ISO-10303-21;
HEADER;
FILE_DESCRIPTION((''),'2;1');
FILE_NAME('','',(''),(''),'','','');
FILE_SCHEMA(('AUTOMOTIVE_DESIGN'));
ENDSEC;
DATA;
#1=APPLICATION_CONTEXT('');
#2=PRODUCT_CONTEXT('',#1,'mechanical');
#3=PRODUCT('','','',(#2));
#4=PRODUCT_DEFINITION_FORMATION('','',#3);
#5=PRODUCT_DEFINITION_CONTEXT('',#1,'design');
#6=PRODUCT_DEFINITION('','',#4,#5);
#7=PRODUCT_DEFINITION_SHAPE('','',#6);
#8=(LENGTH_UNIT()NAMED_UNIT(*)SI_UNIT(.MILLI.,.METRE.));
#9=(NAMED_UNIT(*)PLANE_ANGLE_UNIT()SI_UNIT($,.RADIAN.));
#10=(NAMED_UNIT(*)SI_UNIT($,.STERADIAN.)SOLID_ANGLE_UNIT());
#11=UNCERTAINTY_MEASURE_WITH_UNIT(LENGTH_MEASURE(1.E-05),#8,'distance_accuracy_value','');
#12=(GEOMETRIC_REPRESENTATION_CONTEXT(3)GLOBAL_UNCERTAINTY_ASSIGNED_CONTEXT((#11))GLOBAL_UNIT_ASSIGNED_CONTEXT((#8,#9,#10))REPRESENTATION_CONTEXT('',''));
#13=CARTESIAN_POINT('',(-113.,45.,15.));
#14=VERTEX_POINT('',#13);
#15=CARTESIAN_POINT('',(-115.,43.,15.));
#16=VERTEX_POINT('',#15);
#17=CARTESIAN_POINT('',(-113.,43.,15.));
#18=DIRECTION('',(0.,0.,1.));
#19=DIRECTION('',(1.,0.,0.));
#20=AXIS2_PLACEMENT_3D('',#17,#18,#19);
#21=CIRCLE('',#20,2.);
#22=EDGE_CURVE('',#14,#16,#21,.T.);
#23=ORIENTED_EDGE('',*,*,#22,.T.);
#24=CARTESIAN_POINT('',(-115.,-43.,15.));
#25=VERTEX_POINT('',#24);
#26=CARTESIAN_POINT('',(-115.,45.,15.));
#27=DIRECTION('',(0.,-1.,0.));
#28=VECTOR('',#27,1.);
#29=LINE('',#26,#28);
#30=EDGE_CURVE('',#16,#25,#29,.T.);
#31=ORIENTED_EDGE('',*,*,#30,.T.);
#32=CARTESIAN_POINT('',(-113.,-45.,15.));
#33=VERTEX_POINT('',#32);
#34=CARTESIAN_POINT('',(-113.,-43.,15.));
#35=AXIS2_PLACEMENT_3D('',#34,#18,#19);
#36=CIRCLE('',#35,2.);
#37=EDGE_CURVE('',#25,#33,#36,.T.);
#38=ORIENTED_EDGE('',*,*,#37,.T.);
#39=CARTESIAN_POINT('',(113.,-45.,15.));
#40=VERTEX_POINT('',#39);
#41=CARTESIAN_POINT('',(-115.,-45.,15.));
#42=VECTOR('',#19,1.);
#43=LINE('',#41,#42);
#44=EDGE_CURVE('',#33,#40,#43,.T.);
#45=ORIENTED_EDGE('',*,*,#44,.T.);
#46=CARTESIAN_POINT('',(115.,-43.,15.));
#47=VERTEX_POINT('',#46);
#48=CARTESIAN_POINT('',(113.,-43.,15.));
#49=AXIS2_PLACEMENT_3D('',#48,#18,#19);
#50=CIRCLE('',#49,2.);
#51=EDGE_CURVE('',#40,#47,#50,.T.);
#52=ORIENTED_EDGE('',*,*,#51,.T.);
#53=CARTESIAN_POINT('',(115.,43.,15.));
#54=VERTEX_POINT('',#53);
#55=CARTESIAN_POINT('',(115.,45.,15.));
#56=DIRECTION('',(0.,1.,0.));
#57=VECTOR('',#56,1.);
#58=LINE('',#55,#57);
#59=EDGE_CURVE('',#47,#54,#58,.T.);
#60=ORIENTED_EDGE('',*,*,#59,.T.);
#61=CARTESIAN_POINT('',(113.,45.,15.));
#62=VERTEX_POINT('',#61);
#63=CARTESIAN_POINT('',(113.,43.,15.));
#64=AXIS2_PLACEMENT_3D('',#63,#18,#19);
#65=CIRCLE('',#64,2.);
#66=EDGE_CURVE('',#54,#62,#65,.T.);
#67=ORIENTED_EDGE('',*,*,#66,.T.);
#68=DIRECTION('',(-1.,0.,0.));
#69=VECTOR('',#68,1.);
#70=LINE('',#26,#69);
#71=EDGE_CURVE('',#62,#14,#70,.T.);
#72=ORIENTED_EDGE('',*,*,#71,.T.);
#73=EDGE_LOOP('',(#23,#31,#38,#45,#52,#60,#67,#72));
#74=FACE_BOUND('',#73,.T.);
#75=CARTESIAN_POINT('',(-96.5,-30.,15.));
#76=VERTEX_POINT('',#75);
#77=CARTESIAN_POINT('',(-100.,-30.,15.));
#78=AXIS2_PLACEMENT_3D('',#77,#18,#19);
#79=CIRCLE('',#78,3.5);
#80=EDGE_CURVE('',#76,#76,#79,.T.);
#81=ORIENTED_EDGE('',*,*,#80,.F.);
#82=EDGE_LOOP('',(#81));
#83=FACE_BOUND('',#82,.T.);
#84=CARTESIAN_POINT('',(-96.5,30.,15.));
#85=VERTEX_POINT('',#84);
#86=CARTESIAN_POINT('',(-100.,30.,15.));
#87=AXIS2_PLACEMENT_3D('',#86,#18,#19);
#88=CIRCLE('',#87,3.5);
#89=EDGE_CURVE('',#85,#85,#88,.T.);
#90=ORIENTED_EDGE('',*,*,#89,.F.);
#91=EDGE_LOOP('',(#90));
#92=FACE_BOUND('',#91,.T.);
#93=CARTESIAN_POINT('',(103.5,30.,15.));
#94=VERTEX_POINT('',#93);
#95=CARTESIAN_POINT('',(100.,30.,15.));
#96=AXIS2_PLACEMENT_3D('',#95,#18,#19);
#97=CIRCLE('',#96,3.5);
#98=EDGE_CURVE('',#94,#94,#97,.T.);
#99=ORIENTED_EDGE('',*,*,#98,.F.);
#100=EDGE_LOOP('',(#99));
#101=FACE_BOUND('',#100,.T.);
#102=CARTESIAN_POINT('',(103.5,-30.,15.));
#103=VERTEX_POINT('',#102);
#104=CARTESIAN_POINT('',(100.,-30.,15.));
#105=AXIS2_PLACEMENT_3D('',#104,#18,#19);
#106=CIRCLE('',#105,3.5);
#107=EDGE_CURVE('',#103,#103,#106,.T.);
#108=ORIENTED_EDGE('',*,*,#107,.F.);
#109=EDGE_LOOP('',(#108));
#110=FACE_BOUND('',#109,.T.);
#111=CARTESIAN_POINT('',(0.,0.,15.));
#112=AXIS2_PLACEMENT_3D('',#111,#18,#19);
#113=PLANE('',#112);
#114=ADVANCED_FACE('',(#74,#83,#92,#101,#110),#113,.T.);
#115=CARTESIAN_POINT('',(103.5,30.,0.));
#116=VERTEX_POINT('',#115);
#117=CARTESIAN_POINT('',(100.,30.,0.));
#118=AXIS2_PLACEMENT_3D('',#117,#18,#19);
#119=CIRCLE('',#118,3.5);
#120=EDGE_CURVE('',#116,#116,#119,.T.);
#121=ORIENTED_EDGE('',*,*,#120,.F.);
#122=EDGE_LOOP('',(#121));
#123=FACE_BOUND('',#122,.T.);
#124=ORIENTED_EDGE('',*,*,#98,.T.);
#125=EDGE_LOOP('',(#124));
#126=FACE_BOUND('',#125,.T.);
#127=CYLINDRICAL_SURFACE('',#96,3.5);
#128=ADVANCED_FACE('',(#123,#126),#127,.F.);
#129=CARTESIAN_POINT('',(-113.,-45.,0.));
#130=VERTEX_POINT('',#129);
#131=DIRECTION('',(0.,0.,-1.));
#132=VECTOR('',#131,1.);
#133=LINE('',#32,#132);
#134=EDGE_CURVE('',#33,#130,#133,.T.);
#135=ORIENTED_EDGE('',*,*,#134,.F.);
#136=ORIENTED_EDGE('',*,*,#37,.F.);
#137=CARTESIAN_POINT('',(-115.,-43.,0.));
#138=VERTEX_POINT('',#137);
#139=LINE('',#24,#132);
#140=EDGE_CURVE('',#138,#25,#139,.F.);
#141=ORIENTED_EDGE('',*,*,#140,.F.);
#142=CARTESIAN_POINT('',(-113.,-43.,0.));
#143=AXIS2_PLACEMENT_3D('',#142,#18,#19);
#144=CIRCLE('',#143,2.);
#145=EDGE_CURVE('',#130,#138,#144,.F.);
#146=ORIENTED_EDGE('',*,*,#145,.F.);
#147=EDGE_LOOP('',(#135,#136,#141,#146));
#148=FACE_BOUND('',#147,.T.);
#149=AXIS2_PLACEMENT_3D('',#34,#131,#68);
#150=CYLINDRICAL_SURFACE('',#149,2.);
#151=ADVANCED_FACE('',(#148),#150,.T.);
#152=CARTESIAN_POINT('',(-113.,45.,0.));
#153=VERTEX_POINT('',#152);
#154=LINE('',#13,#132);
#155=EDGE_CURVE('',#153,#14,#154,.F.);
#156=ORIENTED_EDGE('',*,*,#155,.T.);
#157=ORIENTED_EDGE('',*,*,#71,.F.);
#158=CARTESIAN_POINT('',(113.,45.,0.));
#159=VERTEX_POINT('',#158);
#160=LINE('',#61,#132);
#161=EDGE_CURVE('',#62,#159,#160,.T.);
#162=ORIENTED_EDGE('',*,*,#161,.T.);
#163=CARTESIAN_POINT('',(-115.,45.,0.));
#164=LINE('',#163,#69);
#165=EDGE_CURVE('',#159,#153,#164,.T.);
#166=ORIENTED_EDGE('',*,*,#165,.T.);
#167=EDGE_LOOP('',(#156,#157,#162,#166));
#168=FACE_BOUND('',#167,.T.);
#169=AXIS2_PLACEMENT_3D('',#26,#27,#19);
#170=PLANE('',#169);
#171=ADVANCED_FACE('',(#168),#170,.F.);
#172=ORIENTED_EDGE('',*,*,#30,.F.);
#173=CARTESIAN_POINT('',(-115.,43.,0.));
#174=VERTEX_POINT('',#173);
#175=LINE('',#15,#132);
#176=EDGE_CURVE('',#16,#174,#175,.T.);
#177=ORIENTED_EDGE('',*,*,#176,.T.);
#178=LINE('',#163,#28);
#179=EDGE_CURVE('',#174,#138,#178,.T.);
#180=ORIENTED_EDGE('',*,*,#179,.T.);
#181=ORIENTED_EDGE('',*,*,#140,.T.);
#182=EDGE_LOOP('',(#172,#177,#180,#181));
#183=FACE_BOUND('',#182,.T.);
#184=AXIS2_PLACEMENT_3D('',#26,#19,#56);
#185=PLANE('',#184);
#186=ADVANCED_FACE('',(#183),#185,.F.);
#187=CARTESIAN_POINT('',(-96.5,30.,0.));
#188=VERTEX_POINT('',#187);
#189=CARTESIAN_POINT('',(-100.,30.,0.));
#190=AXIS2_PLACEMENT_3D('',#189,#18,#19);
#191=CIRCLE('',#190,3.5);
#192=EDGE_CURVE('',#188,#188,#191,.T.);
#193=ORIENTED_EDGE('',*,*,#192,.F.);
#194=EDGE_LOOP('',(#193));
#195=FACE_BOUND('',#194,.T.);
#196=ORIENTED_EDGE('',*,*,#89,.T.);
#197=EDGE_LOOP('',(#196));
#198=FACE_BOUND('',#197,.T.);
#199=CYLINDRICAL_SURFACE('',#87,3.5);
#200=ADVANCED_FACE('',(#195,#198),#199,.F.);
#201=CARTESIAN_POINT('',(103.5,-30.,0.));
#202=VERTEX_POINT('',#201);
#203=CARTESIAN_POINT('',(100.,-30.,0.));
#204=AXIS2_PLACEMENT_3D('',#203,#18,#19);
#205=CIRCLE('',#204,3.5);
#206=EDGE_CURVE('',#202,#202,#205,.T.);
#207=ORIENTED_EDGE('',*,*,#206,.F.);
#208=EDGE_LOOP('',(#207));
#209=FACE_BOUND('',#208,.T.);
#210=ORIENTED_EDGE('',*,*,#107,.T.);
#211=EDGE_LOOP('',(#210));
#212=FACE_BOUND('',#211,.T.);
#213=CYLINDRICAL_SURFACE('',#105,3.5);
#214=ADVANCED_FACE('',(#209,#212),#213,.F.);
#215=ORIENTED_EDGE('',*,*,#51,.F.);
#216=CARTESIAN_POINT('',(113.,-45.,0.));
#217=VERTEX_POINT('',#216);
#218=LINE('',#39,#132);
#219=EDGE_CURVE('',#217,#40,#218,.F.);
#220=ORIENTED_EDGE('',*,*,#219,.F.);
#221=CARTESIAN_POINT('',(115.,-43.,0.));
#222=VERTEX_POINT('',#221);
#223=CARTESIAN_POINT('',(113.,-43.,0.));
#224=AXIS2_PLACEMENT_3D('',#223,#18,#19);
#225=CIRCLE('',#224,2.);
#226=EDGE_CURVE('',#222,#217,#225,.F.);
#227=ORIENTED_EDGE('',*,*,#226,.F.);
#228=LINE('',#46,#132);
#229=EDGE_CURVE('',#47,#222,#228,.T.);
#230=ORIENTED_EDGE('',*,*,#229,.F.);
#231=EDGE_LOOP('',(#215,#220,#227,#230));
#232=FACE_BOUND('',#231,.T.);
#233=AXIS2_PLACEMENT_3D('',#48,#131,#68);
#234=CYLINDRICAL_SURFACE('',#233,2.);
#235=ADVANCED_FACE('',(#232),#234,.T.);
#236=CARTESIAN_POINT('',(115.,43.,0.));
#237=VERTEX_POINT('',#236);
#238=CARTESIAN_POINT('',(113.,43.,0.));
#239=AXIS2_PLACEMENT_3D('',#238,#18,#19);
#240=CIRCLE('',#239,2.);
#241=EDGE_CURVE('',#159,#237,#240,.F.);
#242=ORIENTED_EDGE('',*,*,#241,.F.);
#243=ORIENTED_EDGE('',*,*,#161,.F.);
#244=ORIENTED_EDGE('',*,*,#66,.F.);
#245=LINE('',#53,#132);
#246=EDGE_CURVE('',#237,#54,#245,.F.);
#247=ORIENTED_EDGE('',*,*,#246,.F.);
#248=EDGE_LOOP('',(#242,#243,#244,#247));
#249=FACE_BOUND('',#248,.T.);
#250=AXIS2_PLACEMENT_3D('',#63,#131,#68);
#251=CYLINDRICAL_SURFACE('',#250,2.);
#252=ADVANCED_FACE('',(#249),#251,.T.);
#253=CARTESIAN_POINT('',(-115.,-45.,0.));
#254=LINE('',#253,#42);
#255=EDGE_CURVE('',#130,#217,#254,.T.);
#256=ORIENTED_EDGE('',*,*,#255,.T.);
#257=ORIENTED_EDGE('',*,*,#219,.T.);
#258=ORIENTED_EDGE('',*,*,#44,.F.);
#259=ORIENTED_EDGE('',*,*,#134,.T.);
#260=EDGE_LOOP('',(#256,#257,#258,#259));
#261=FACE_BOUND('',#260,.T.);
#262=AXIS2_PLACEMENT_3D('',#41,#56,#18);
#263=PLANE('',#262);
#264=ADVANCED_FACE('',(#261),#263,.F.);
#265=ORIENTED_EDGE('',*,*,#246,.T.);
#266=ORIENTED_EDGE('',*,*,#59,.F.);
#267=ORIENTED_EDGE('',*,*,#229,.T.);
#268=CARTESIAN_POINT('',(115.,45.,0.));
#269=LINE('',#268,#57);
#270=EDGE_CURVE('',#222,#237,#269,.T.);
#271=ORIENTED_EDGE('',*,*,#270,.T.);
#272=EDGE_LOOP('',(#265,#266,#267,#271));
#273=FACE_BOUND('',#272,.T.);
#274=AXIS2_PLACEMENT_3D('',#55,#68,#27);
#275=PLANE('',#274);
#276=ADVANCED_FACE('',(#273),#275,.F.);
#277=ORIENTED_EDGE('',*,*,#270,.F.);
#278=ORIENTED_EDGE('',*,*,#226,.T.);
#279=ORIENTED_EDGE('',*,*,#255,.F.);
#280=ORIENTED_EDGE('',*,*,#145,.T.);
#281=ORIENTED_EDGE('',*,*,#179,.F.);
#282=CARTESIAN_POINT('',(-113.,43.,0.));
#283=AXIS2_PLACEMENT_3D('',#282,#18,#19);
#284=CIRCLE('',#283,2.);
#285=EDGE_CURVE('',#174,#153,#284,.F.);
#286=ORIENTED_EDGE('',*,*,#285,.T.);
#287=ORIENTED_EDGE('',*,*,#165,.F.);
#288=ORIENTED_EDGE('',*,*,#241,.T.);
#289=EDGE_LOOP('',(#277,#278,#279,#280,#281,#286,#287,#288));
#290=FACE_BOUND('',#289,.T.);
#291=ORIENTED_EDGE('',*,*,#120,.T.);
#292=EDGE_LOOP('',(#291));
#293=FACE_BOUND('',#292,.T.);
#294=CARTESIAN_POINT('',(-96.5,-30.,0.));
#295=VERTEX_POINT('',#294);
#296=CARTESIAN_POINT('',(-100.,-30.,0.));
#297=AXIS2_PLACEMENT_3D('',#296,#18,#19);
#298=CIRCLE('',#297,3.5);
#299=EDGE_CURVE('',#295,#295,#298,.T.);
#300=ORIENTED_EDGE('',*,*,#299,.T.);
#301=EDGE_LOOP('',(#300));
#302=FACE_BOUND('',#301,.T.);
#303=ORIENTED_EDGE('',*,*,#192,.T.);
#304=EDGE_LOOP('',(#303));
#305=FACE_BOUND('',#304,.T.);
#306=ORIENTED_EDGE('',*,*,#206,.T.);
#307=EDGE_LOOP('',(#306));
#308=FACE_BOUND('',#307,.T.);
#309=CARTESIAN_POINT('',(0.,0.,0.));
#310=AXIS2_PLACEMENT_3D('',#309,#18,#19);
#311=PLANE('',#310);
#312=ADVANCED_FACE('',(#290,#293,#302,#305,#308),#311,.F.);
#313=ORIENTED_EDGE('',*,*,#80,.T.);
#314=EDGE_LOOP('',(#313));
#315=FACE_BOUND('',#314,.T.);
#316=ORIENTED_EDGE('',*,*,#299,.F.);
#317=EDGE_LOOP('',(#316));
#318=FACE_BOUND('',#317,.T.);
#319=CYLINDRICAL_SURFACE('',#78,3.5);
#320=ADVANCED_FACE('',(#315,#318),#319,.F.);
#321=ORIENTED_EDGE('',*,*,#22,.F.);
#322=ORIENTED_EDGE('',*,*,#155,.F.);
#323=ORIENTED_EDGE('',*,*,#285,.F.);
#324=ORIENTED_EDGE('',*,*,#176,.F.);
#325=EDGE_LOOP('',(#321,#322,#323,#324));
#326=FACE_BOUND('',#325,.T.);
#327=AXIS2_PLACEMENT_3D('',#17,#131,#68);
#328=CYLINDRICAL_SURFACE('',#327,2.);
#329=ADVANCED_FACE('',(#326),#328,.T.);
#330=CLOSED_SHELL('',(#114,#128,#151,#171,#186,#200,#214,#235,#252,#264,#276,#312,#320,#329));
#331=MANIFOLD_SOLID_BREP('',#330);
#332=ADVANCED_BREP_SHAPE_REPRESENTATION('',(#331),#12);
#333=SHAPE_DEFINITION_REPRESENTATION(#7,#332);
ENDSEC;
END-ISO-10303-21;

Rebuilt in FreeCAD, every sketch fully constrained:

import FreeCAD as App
import Part
import Sketcher
Q = App.Units.Quantity


def edges_at(feature, points):
    """Names of the edges that pass closest to the given points."""
    edges = feature.Shape.Edges
    near = lambda p: min(range(len(edges)), key=lambda i: edges[i].distToShape(Part.Vertex(*p))[0])
    return sorted({f"Edge{near(p) + 1}" for p in points})

doc = App.newDocument("Part")
body = doc.addObject("PartDesign::Body", "Body")

# Sketch on XY plane
sketch1 = doc.addObject("Sketcher::SketchObject", "Sketch")
body.addObject(sketch1)
sketch1.AttachmentSupport = (doc.XY_Plane, [""])
sketch1.MapMode = "FlatFace"
sketch1.addGeometry(Part.LineSegment(App.Vector(-115, 45, 0), App.Vector(-115, -45, 0)), False)
sketch1.addGeometry(Part.LineSegment(App.Vector(-115, -45, 0), App.Vector(115, -45, 0)), False)
sketch1.addGeometry(Part.LineSegment(App.Vector(115, -45, 0), App.Vector(115, 45, 0)), False)
sketch1.addGeometry(Part.LineSegment(App.Vector(115, 45, 0), App.Vector(-115, 45, 0)), False)
sketch1.addConstraint(Sketcher.Constraint("Coincident", 0, 2, 1, 1))
sketch1.addConstraint(Sketcher.Constraint("Coincident", 1, 2, 2, 1))
sketch1.addConstraint(Sketcher.Constraint("Coincident", 2, 2, 3, 1))
sketch1.addConstraint(Sketcher.Constraint("Coincident", 3, 2, 0, 1))
sketch1.addConstraint(Sketcher.Constraint("Vertical", 0))
sketch1.addConstraint(Sketcher.Constraint("Horizontal", 1))
sketch1.addConstraint(Sketcher.Constraint("Vertical", 2))
sketch1.addConstraint(Sketcher.Constraint("Horizontal", 3))
sketch1.addConstraint(Sketcher.Constraint("Symmetric", 0, 2, 2, 2, -1, 1))
sketch1.addConstraint(Sketcher.Constraint("DistanceX", 1, 1, 1, 2, Q("230 mm")))
sketch1.addConstraint(Sketcher.Constraint("DistanceY", 0, 2, 0, 1, Q("90 mm")))
pad1 = doc.addObject("PartDesign::Pad", "Pad")
body.addObject(pad1)
pad1.Profile = sketch1
pad1.Length = 15

# Sketch on XY plane
sketch2 = doc.addObject("Sketcher::SketchObject", "Sketch001")
body.addObject(sketch2)
sketch2.AttachmentSupport = (doc.XY_Plane, [""])
sketch2.MapMode = "FlatFace"
sketch2.AttachmentOffset = App.Placement(App.Vector(0, 0, 15), App.Rotation())
sketch2.addGeometry(Part.Circle(App.Vector(100, -30, 0), App.Vector(0, 0, 1), 3.5), False)
sketch2.addGeometry(Part.Circle(App.Vector(-100, -30, 0), App.Vector(0, 0, 1), 3.5), False)
sketch2.addGeometry(Part.Circle(App.Vector(-100, 30, 0), App.Vector(0, 0, 1), 3.5), False)
sketch2.addGeometry(Part.Circle(App.Vector(100, 30, 0), App.Vector(0, 0, 1), 3.5), False)
sketch2.addConstraint(Sketcher.Constraint("Equal", 0, 1))
sketch2.addConstraint(Sketcher.Constraint("Equal", 1, 2))
sketch2.addConstraint(Sketcher.Constraint("Equal", 2, 3))
sketch2.addConstraint(Sketcher.Constraint("Symmetric", 0, 3, 2, 3, -1, 1))
sketch2.addConstraint(Sketcher.Constraint("Symmetric", 1, 3, 3, 3, -1, 1))
sketch2.addConstraint(Sketcher.Constraint("Symmetric", 0, 3, 1, 3, -2))
sketch2.addConstraint(Sketcher.Constraint("Diameter", 0, Q("7 mm")))
sketch2.addConstraint(Sketcher.Constraint("DistanceX", -1, 1, 0, 3, Q("100 mm")))
sketch2.addConstraint(Sketcher.Constraint("DistanceY", 0, 3, -1, 1, Q("30 mm")))
doc.recompute()
hole = doc.addObject("PartDesign::Hole", "Hole")
body.addObject(hole)
hole.Profile = sketch2
hole.ThreadType = "None"
hole.Diameter = 7
hole.DepthType = "ThroughAll"
doc.recompute()

fillet = doc.addObject("PartDesign::Fillet", "Fillet")
body.addObject(fillet)
fillet.Base = (hole, edges_at(hole, [(-115, 45, 7.5), (115, 45, 7.5)]))
fillet.Radius = 2
doc.recompute()

fillet2 = doc.addObject("PartDesign::Fillet", "Fillet001")
body.addObject(fillet2)
fillet2.Base = (fillet, edges_at(fillet, [(115, -45, 7.5), (-115, -45, 7.5)]))
fillet2.Radius = 2

doc.recompute()
